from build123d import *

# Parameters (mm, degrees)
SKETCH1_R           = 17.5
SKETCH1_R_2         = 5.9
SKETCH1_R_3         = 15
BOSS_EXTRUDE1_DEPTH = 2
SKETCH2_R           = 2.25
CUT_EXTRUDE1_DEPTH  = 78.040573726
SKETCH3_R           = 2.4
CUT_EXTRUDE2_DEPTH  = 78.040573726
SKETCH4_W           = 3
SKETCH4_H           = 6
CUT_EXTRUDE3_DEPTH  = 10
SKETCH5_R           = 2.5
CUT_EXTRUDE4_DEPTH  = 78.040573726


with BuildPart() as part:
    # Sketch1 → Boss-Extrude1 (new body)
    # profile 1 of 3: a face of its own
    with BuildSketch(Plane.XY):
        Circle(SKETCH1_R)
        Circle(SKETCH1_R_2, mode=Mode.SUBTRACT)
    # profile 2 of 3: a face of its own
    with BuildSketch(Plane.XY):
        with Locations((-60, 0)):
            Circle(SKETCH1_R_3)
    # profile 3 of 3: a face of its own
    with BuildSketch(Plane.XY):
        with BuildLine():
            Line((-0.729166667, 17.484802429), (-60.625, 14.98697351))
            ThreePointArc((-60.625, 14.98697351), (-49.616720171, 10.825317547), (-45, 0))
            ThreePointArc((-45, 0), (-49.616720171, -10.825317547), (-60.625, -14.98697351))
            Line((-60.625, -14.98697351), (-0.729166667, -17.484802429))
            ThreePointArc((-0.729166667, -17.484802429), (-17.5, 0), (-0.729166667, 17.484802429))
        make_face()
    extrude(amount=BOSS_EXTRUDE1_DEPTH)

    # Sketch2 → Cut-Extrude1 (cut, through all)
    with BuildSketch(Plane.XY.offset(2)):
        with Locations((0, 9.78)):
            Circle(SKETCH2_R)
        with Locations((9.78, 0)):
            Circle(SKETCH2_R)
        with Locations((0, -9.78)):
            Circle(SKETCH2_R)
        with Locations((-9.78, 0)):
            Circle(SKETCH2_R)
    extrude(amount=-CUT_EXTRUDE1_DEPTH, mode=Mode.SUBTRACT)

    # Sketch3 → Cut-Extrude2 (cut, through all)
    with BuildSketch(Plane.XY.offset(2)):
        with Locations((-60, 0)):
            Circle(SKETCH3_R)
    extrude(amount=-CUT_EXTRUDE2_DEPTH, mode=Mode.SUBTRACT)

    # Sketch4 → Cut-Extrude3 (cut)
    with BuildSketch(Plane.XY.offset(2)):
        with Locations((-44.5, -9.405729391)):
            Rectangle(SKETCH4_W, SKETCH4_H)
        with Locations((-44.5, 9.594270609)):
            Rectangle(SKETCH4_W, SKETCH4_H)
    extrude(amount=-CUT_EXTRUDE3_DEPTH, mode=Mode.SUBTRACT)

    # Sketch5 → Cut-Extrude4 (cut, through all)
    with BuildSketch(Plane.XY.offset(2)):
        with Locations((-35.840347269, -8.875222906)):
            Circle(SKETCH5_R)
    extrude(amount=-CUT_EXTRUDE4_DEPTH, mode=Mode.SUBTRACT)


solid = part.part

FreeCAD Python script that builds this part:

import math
import FreeCAD as App
import Part
import Sketcher

V = App.Vector
Q = App.Units.Quantity

doc = App.newDocument("Part")
body = doc.addObject("PartDesign::Body", "Body")

# Sketch on XY plane
sketch1 = body.newObject("Sketcher::SketchObject", "Sketch")
sketch1.AttachmentSupport = (doc.getObject("XY_Plane"), [""])
sketch1.MapMode = "FlatFace"
sketch1.addGeometry(Part.LineSegment(V(-1, 17, 0), V(-61, 15, 0)), False)
sketch1.addGeometry(Part.ArcOfCircle(Part.Circle(V(-60, 0, 0), V(0, 0, 1), 15), math.radians(92), math.radians(268)), False)
sketch1.addGeometry(Part.LineSegment(V(-61, -15, 0), V(-1, -17, 0)), False)
sketch1.addGeometry(Part.ArcOfCircle(Part.Circle(V(0, 0, 0), V(0, 0, 1), 18), math.radians(-92), math.radians(92)), False)
sketch1.addGeometry(Part.Circle(V(0, 0, 0), V(0, 0, 1), 6), False)
sketch1.addConstraint(Sketcher.Constraint("Tangent", 0, 2, 1, 1))
sketch1.addConstraint(Sketcher.Constraint("Tangent", 1, 2, 2, 1))
sketch1.addConstraint(Sketcher.Constraint("Tangent", 2, 2, 3, 1))
sketch1.addConstraint(Sketcher.Constraint("Tangent", 3, 2, 0, 1))
sketch1.addConstraint(Sketcher.Constraint("Coincident", 3, 3, -1, 1))
sketch1.addConstraint(Sketcher.Constraint("Coincident", 4, 3, -1, 1))
sketch1.addConstraint(Sketcher.Constraint("PointOnObject", 1, 3, -1))
sketch1.addConstraint(Sketcher.Constraint("Radius", 1, Q("15 mm")))
sketch1.addConstraint(Sketcher.Constraint("Diameter", 4, Q("11.8 mm")))
sketch1.addConstraint(Sketcher.Constraint("Radius", 3, Q("17.5 mm")))
sketch1.addConstraint(Sketcher.Constraint("DistanceX", 1, 3, -1, 1, Q("60 mm")))
pad1 = body.newObject("PartDesign::Pad", "Pad")
pad1.Profile = sketch1
pad1.Length = 2

# Sketch on XY plane
sketch2 = body.newObject("Sketcher::SketchObject", "Sketch001")
sketch2.AttachmentSupport = (doc.getObject("XY_Plane"), [""])
sketch2.MapMode = "FlatFace"
sketch2.AttachmentOffset = App.Placement(V(0, 0, 2), App.Rotation())
sketch2.addGeometry(Part.Circle(V(0, 9.8, 0), V(0, 0, 1), 2.2), False)
sketch2.addGeometry(Part.Circle(V(9.8, 0, 0), V(0, 0, 1), 2.2), False)
sketch2.addGeometry(Part.Circle(V(0, -9.8, 0), V(0, 0, 1), 2.2), False)
sketch2.addGeometry(Part.Circle(V(-9.8, 0, 0), V(0, 0, 1), 2.2), False)
sketch2.addConstraint(Sketcher.Constraint("Equal", 0, 1))
sketch2.addConstraint(Sketcher.Constraint("Equal", 1, 2))
sketch2.addConstraint(Sketcher.Constraint("Equal", 2, 3))
sketch2.addConstraint(Sketcher.Constraint("Symmetric", 0, 3, 2, 3, -1, 1))
sketch2.addConstraint(Sketcher.Constraint("Symmetric", 1, 3, 3, 3, -1, 1))
sketch2.addConstraint(Sketcher.Constraint("PointOnObject", 0, 3, -2))
sketch2.addConstraint(Sketcher.Constraint("PointOnObject", 1, 3, -1))
sketch2.addConstraint(Sketcher.Constraint("Diameter", 0, Q("4.5 mm")))
sketch2.addConstraint(Sketcher.Constraint("DistanceY", -1, 1, 0, 3, Q("9.78 mm")))
sketch2.addConstraint(Sketcher.Constraint("DistanceX", -1, 1, 1, 3, Q("9.78 mm")))
pocket1 = body.newObject("PartDesign::Pocket", "Pocket")
pocket1.Profile = sketch2
pocket1.Type = "ThroughAll"

# Sketch on XY plane
sketch3 = body.newObject("Sketcher::SketchObject", "Sketch002")
sketch3.AttachmentSupport = (doc.getObject("XY_Plane"), [""])
sketch3.MapMode = "FlatFace"
sketch3.AttachmentOffset = App.Placement(V(0, 0, 2), App.Rotation())
sketch3.addGeometry(Part.Circle(V(-60, 0, 0), V(0, 0, 1), 2.4), False)
sketch3.addConstraint(Sketcher.Constraint("PointOnObject", 0, 3, -1))
sketch3.addConstraint(Sketcher.Constraint("Diameter", 0, Q("4.8 mm")))
sketch3.addConstraint(Sketcher.Constraint("DistanceX", 0, 3, -1, 1, Q("60 mm")))
pocket2 = body.newObject("PartDesign::Pocket", "Pocket001")
pocket2.Profile = sketch3
pocket2.Type = "ThroughAll"

# Sketch on XY plane
sketch4 = body.newObject("Sketcher::SketchObject", "Sketch003")
sketch4.AttachmentSupport = (doc.getObject("XY_Plane"), [""])
sketch4.MapMode = "FlatFace"
sketch4.AttachmentOffset = App.Placement(V(0, 0, 2), App.Rotation())
sketch4.addGeometry(Part.LineSegment(V(-46, -6.4, 0), V(-46, -12.4, 0)), False)
sketch4.addGeometry(Part.LineSegment(V(-46, -12.4, 0), V(-43, -12.4, 0)), False)
sketch4.addGeometry(Part.LineSegment(V(-43, -12.4, 0), V(-43, -6.4, 0)), False)
sketch4.addGeometry(Part.LineSegment(V(-43, -6.4, 0), V(-46, -6.4, 0)), False)
sketch4.addGeometry(Part.LineSegment(V(-46, 12.6, 0), V(-46, 6.6, 0)), False)
sketch4.addGeometry(Part.LineSegment(V(-46, 6.6, 0), V(-43, 6.6, 0)), False)
sketch4.addGeometry(Part.LineSegment(V(-43, 6.6, 0), V(-43, 12.6, 0)), False)
sketch4.addGeometry(Part.LineSegment(V(-43, 12.6, 0), V(-46, 12.6, 0)), False)
sketch4.addConstraint(Sketcher.Constraint("Coincident", 0, 2, 1, 1))
sketch4.addConstraint(Sketcher.Constraint("Coincident", 1, 2, 2, 1))
sketch4.addConstraint(Sketcher.Constraint("Coincident", 2, 2, 3, 1))
sketch4.addConstraint(Sketcher.Constraint("Coincident", 3, 2, 0, 1))
sketch4.addConstraint(Sketcher.Constraint("Coincident", 4, 2, 5, 1))
sketch4.addConstraint(Sketcher.Constraint("Coincident", 5, 2, 6, 1))
sketch4.addConstraint(Sketcher.Constraint("Coincident", 6, 2, 7, 1))
sketch4.addConstraint(Sketcher.Constraint("Coincident", 7, 2, 4, 1))
sketch4.addConstraint(Sketcher.Constraint("Vertical", 0))
sketch4.addConstraint(Sketcher.Constraint("Horizontal", 1))
sketch4.addConstraint(Sketcher.Constraint("Vertical", 2))
sketch4.addConstraint(Sketcher.Constraint("Horizontal", 3))
sketch4.addConstraint(Sketcher.Constraint("Vertical", 4))
sketch4.addConstraint(Sketcher.Constraint("Horizontal", 5))
sketch4.addConstraint(Sketcher.Constraint("Vertical", 6))
sketch4.addConstraint(Sketcher.Constraint("Horizontal", 7))
sketch4.addConstraint(Sketcher.Constraint("Vertical", 3, 2, 4, 2))
sketch4.addConstraint(Sketcher.Constraint("Vertical", 2, 2, 5, 2))
sketch4.addConstraint(Sketcher.Constraint("Equal", 2, 4))
sketch4.addConstraint(Sketcher.Constraint("DistanceX", 1, 1, 1, 2, Q("3 mm")))
sketch4.addConstraint(Sketcher.Constraint("DistanceY", 0, 2, 0, 1, Q("6 mm")))
sketch4.addConstraint(Sketcher.Constraint("DistanceX", 0, 2, -1, 1, Q("46 mm")))
sketch4.addConstraint(Sketcher.Constraint("DistanceY", 3, 2, 4, 2, Q("13 mm")))
sketch4.addConstraint(Sketcher.Constraint("DistanceY", 0, 2, -1, 1, Q("12.405729 mm")))
pocket3 = body.newObject("PartDesign::Pocket", "Pocket002")
pocket3.Profile = sketch4
pocket3.Length = 10

# Sketch on XY plane
sketch5 = body.newObject("Sketcher::SketchObject", "Sketch004")
sketch5.AttachmentSupport = (doc.getObject("XY_Plane"), [""])
sketch5.MapMode = "FlatFace"
sketch5.AttachmentOffset = App.Placement(V(0, 0, 2), App.Rotation())
sketch5.addGeometry(Part.Circle(V(-35.8, -8.9, 0), V(0, 0, 1), 2.5), False)
sketch5.addConstraint(Sketcher.Constraint("Diameter", 0, Q("5 mm")))
sketch5.addConstraint(Sketcher.Constraint("DistanceX", 0, 3, -1, 1, Q("35.840347 mm")))
sketch5.addConstraint(Sketcher.Constraint("DistanceY", 0, 3, -1, 1, Q("8.875223 mm")))
pocket4 = body.newObject("PartDesign::Pocket", "Pocket003")
pocket4.Profile = sketch5
pocket4.Type = "ThroughAll"

doc.recompute()
